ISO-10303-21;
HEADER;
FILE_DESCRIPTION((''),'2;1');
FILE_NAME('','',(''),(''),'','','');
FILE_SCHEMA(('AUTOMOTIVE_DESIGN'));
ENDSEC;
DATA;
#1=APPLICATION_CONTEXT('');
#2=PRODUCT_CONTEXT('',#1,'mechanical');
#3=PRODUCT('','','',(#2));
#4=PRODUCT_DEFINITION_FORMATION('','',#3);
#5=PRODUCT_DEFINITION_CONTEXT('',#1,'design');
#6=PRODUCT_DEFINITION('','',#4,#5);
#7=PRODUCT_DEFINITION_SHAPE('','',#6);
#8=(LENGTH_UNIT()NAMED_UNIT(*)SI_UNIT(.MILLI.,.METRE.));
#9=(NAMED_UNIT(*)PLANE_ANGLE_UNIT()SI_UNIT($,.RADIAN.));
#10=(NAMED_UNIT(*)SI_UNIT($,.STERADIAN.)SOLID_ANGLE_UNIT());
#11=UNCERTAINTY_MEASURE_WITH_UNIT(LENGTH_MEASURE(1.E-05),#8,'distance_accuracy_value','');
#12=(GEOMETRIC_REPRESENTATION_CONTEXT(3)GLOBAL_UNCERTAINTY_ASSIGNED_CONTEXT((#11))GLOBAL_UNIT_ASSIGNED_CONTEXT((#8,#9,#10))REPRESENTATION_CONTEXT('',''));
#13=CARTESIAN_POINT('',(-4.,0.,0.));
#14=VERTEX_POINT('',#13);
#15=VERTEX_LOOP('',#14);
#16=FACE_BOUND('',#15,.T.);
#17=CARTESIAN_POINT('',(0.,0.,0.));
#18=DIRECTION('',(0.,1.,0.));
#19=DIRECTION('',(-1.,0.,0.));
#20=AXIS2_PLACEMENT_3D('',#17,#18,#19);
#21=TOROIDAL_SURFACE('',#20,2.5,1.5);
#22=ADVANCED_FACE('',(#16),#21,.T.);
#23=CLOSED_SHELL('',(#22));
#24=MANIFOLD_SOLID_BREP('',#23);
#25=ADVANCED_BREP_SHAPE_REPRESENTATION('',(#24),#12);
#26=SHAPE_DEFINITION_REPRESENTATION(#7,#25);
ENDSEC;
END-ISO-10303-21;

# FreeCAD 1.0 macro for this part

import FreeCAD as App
import Part
import Sketcher

V = App.Vector

doc = App.newDocument("Part")
params = doc.addObject("Spreadsheet::Sheet", "Params")
for row, (alias, value) in enumerate([
    ("sketch1_diameter", "3 mm"),
    ("revolution_angle", "360 deg"),
], start=1):
    params.set(f"A{row}", alias)
    params.set(f"B{row}", "=" + value)
    params.setAlias(f"B{row}", alias)

body = doc.addObject("PartDesign::Body", "Body")

# Sketch on XY plane
sketch1 = body.newObject("Sketcher::SketchObject", "Sketch")
sketch1.AttachmentSupport = (doc.getObject("XY_Plane"), [""])
sketch1.MapMode = "FlatFace"
sketch1.addGeometry(Part.Circle(V(2.5, 0, 0), V(0, 0, 1), 1.5), False)
sketch1.addConstraint(Sketcher.Constraint("PointOnObject", 0, 3, -1))
sketch1.addConstraint(Sketcher.Constraint("Diameter", 0, 3.0))
sketch1.addConstraint(Sketcher.Constraint("DistanceX", -1, 1, 0, 3, 2.5))
sketch1.setExpression("Constraints[1]", "Params.sketch1_diameter")
revolution = body.newObject("PartDesign::Revolution", "Revolution")
revolution.Profile = sketch1
revolution.ReferenceAxis = (sketch1, ["V_Axis"])
revolution.setExpression("Angle", "Params.revolution_angle")

doc.recompute()
